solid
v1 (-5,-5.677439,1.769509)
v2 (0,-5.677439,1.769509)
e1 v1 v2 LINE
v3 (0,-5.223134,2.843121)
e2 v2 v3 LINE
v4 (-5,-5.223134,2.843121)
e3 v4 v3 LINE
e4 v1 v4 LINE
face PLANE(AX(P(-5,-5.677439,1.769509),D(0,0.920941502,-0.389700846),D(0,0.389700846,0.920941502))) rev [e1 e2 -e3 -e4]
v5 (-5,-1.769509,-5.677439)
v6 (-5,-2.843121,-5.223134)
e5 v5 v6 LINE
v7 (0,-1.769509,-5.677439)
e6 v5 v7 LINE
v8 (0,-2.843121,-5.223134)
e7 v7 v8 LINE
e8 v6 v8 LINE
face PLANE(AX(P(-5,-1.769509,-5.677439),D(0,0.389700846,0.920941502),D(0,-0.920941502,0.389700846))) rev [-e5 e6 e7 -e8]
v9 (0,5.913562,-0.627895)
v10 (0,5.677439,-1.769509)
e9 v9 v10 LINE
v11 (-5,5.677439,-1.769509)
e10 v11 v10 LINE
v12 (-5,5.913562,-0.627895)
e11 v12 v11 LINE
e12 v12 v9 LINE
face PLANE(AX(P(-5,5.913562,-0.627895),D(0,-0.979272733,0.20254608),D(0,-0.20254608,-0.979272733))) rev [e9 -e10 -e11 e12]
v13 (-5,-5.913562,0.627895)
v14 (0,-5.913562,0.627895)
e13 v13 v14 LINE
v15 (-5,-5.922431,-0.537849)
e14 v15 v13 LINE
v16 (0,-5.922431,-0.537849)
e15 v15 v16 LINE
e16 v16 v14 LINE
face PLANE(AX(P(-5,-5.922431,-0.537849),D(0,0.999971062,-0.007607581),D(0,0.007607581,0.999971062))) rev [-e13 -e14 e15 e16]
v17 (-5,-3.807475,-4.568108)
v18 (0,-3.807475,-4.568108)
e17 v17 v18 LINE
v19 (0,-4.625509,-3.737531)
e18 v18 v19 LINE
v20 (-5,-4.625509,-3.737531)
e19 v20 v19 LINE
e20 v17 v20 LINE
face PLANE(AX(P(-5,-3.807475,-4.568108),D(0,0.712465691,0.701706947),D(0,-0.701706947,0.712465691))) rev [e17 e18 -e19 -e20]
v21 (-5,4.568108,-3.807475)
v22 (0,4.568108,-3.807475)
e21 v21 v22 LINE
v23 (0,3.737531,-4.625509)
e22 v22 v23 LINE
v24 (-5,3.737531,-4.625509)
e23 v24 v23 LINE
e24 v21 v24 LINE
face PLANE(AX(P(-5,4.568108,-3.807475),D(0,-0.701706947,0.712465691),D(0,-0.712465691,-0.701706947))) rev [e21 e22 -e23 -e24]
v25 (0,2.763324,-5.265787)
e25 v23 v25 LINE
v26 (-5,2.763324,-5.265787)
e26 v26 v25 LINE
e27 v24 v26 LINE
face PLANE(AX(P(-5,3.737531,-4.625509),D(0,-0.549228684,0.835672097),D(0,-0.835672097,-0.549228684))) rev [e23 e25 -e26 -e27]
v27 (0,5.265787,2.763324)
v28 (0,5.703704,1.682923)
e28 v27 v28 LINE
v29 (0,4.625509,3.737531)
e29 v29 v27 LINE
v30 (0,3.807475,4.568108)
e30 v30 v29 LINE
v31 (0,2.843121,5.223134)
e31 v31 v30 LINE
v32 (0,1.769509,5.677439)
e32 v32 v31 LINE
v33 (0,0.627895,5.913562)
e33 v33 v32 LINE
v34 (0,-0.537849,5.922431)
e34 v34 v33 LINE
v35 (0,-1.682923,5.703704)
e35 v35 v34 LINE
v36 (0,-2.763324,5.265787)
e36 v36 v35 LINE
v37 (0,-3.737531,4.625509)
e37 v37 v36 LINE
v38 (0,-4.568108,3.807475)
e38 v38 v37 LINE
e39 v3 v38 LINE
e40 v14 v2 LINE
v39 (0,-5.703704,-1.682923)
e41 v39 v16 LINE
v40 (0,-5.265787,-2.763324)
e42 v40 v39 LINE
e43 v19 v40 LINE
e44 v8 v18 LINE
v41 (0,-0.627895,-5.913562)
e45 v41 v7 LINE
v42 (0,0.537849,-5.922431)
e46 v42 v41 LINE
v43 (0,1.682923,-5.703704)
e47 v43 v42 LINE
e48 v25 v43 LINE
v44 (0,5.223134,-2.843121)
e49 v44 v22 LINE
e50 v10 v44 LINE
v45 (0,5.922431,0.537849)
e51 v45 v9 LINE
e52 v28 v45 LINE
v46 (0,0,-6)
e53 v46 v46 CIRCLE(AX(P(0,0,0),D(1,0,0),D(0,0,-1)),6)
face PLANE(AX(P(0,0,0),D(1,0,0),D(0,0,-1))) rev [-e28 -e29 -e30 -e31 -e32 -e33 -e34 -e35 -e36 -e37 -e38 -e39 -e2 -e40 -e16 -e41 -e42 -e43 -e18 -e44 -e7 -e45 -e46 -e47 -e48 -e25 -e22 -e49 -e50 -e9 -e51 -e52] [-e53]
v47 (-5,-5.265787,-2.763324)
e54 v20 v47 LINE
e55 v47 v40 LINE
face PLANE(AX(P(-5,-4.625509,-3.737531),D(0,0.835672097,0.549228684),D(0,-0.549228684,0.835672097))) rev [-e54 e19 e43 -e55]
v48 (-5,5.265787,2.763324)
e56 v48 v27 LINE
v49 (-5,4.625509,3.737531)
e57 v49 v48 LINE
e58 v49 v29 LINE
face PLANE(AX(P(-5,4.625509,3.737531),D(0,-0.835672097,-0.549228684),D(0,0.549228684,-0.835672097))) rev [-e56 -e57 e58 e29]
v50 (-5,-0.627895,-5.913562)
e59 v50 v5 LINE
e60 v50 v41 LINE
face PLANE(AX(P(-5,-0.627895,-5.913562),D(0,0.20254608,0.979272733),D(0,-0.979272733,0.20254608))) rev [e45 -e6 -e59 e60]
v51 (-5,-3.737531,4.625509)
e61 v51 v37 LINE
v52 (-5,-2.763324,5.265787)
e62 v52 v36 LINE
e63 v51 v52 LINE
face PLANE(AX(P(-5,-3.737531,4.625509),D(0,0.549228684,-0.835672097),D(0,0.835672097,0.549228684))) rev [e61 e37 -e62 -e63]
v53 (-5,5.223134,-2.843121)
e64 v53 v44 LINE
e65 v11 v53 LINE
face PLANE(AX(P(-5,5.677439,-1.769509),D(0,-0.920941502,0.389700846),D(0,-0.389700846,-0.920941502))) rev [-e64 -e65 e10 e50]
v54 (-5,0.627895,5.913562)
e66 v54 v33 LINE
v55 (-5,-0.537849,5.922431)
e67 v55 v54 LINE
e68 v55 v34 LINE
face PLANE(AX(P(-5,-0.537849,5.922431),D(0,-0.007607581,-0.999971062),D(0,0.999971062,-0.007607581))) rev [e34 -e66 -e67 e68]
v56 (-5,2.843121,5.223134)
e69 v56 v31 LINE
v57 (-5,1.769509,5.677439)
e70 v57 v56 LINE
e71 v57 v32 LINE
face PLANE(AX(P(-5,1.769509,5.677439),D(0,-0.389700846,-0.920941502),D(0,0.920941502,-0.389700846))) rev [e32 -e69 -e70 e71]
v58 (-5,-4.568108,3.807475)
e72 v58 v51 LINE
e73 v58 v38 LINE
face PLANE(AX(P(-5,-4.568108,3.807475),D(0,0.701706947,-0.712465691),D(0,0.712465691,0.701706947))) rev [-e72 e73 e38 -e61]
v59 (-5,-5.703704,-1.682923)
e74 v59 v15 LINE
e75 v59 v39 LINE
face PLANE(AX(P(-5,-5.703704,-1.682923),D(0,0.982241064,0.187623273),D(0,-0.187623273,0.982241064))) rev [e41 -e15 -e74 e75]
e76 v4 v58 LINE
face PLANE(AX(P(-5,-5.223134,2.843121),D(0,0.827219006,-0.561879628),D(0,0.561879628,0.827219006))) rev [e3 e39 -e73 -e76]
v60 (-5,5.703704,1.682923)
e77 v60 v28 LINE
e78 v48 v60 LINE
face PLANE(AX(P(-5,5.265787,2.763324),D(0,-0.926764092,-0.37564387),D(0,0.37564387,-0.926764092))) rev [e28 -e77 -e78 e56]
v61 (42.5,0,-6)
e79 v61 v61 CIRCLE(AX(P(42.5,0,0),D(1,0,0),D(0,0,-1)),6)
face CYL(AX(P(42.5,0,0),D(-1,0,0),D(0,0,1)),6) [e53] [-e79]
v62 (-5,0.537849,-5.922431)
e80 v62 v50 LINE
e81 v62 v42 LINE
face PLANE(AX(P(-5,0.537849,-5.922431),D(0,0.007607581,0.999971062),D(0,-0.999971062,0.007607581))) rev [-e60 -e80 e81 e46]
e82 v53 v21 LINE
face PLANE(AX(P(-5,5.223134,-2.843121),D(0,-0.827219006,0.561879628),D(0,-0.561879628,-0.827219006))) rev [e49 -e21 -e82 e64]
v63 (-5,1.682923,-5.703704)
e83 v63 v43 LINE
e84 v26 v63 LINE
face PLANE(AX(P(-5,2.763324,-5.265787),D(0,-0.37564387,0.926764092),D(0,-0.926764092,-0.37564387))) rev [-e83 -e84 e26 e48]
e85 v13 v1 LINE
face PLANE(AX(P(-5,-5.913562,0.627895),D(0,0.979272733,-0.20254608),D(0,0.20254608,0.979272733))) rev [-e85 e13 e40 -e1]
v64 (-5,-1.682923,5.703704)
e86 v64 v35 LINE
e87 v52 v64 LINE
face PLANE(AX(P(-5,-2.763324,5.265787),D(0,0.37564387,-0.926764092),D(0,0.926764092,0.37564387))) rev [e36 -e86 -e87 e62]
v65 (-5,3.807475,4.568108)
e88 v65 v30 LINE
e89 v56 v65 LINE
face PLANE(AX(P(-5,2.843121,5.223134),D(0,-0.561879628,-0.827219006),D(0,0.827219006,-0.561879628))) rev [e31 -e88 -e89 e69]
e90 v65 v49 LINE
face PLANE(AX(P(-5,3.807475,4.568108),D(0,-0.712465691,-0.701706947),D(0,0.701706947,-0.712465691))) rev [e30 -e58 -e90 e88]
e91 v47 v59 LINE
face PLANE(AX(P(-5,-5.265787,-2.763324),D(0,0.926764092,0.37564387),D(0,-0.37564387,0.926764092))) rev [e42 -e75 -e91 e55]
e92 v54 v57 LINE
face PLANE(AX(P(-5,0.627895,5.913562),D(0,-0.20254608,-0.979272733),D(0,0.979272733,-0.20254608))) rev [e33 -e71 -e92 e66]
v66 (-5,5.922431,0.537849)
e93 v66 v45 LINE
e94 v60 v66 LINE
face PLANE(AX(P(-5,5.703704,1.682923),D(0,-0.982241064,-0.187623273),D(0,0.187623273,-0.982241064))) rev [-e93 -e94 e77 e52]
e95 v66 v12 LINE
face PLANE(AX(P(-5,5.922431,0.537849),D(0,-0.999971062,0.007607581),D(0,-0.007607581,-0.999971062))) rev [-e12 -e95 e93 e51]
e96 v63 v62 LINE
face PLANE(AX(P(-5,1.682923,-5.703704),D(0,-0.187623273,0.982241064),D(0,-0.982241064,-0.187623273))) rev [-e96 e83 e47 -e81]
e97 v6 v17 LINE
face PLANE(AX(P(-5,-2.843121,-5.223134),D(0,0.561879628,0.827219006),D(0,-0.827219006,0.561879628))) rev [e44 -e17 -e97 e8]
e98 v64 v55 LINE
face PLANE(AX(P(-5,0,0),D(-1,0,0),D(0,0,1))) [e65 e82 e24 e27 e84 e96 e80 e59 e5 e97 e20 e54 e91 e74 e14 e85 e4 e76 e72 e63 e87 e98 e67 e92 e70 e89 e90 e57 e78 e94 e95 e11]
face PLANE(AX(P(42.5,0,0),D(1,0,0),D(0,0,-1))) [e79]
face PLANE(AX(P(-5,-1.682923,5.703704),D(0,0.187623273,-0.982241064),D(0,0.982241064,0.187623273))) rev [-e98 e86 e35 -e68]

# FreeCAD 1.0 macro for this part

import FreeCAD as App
import Part
import Sketcher
from FreeCAD import Vector
Q = App.Units.Quantity

doc = App.newDocument("Part")
body = doc.addObject("PartDesign::Body", "Body")

sketch1 = body.newObject("Sketcher::SketchObject", "Sketch")
sketch1.AttachmentSupport = (doc.getObject("YZ_Plane"), [""])
sketch1.MapMode = "FlatFace"
sketch1.addGeometry(Part.Circle(Vector(0, 0, 0), Vector(0, 0, 1), 6), False)
sketch1.addConstraint(Sketcher.Constraint("Coincident", 0, 3, -1, 1))
sketch1.addConstraint(Sketcher.Constraint("Diameter", 0, Q("12 mm")))
pad1 = body.newObject("PartDesign::Pad", "Pad")
pad1.Profile = sketch1
pad1.Length = 42.5

sketch2 = body.newObject("Sketcher::SketchObject", "Sketch001")
sketch2.AttachmentSupport = (doc.getObject("YZ_Plane"), [""])
sketch2.MapMode = "FlatFace"
sketch2.addGeometry(Part.LineSegment(Vector(0.5, -5.9, 0), Vector(-0.6, -5.9, 0)), False)
sketch2.addGeometry(Part.LineSegment(Vector(-0.6, -5.9, 0), Vector(-1.8, -5.7, 0)), False)
sketch2.addGeometry(Part.LineSegment(Vector(-1.8, -5.7, 0), Vector(-2.8, -5.2, 0)), False)
sketch2.addGeometry(Part.LineSegment(Vector(-2.8, -5.2, 0), Vector(-3.8, -4.6, 0)), False)
sketch2.addGeometry(Part.LineSegment(Vector(-3.8, -4.6, 0), Vector(-4.6, -3.7, 0)), False)
sketch2.addGeometry(Part.LineSegment(Vector(-4.6, -3.7, 0), Vector(-5.3, -2.8, 0)), False)
sketch2.addGeometry(Part.LineSegment(Vector(-5.3, -2.8, 0), Vector(-5.7, -1.7, 0)), False)
sketch2.addGeometry(Part.LineSegment(Vector(-5.7, -1.7, 0), Vector(-5.9, -0.5, 0)), False)
sketch2.addGeometry(Part.LineSegment(Vector(-5.9, -0.5, 0), Vector(-5.9, 0.6, 0)), False)
sketch2.addGeometry(Part.LineSegment(Vector(-5.9, 0.6, 0), Vector(-5.7, 1.8, 0)), False)
sketch2.addGeometry(Part.LineSegment(Vector(-5.7, 1.8, 0), Vector(-5.2, 2.8, 0)), False)
sketch2.addGeometry(Part.LineSegment(Vector(-5.2, 2.8, 0), Vector(-4.6, 3.8, 0)), False)
sketch2.addGeometry(Part.LineSegment(Vector(-4.6, 3.8, 0), Vector(-3.7, 4.6, 0)), False)
sketch2.addGeometry(Part.LineSegment(Vector(-3.7, 4.6, 0), Vector(-2.8, 5.3, 0)), False)
sketch2.addGeometry(Part.LineSegment(Vector(-2.8, 5.3, 0), Vector(-1.7, 5.7, 0)), False)
sketch2.addGeometry(Part.LineSegment(Vector(-1.7, 5.7, 0), Vector(-0.5, 5.9, 0)), False)
sketch2.addGeometry(Part.LineSegment(Vector(-0.5, 5.9, 0), Vector(0.6, 5.9, 0)), False)
sketch2.addGeometry(Part.LineSegment(Vector(0.6, 5.9, 0), Vector(1.8, 5.7, 0)), False)
sketch2.addGeometry(Part.LineSegment(Vector(1.8, 5.7, 0), Vector(2.8, 5.2, 0)), False)
sketch2.addGeometry(Part.LineSegment(Vector(2.8, 5.2, 0), Vector(3.8, 4.6, 0)), False)
sketch2.addGeometry(Part.LineSegment(Vector(3.8, 4.6, 0), Vector(4.6, 3.7, 0)), False)
sketch2.addGeometry(Part.LineSegment(Vector(4.6, 3.7, 0), Vector(5.3, 2.8, 0)), False)
sketch2.addGeometry(Part.LineSegment(Vector(5.3, 2.8, 0), Vector(5.7, 1.7, 0)), False)
sketch2.addGeometry(Part.LineSegment(Vector(5.7, 1.7, 0), Vector(5.9, 0.5, 0)), False)
sketch2.addGeometry(Part.LineSegment(Vector(5.9, 0.5, 0), Vector(5.9, -0.6, 0)), False)
sketch2.addGeometry(Part.LineSegment(Vector(5.9, -0.6, 0), Vector(5.7, -1.8, 0)), False)
sketch2.addGeometry(Part.LineSegment(Vector(5.7, -1.8, 0), Vector(5.2, -2.8, 0)), False)
sketch2.addGeometry(Part.LineSegment(Vector(5.2, -2.8, 0), Vector(4.6, -3.8, 0)), False)
sketch2.addGeometry(Part.LineSegment(Vector(4.6, -3.8, 0), Vector(3.7, -4.6, 0)), False)
sketch2.addGeometry(Part.LineSegment(Vector(3.7, -4.6, 0), Vector(2.8, -5.3, 0)), False)
sketch2.addGeometry(Part.LineSegment(Vector(2.8, -5.3, 0), Vector(1.7, -5.7, 0)), False)
sketch2.addGeometry(Part.LineSegment(Vector(1.7, -5.7, 0), Vector(0.5, -5.9, 0)), False)
sketch2.addConstraint(Sketcher.Constraint("Coincident", 0, 2, 1, 1))
sketch2.addConstraint(Sketcher.Constraint("Coincident", 1, 2, 2, 1))
sketch2.addConstraint(Sketcher.Constraint("Coincident", 2, 2, 3, 1))
sketch2.addConstraint(Sketcher.Constraint("Coincident", 3, 2, 4, 1))
sketch2.addConstraint(Sketcher.Constraint("Coincident", 4, 2, 5, 1))
sketch2.addConstraint(Sketcher.Constraint("Coincident", 5, 2, 6, 1))
sketch2.addConstraint(Sketcher.Constraint("Coincident", 6, 2, 7, 1))
sketch2.addConstraint(Sketcher.Constraint("Coincident", 7, 2, 8, 1))
sketch2.addConstraint(Sketcher.Constraint("Coincident", 8, 2, 9, 1))
sketch2.addConstraint(Sketcher.Constraint("Coincident", 9, 2, 10, 1))
sketch2.addConstraint(Sketcher.Constraint("Coincident", 10, 2, 11, 1))
sketch2.addConstraint(Sketcher.Constraint("Coincident", 11, 2, 12, 1))
sketch2.addConstraint(Sketcher.Constraint("Coincident", 12, 2, 13, 1))
sketch2.addConstraint(Sketcher.Constraint("Coincident", 13, 2, 14, 1))
sketch2.addConstraint(Sketcher.Constraint("Coincident", 14, 2, 15, 1))
sketch2.addConstraint(Sketcher.Constraint("Coincident", 15, 2, 16, 1))
sketch2.addConstraint(Sketcher.Constraint("Coincident", 16, 2, 17, 1))
sketch2.addConstraint(Sketcher.Constraint("Coincident", 17, 2, 18, 1))
sketch2.addConstraint(Sketcher.Constraint("Coincident", 18, 2, 19, 1))
sketch2.addConstraint(Sketcher.Constraint("Coincident", 19, 2, 20, 1))
sketch2.addConstraint(Sketcher.Constraint("Coincident", 20, 2, 21, 1))
sketch2.addConstraint(Sketcher.Constraint("Coincident", 21, 2, 22, 1))
sketch2.addConstraint(Sketcher.Constraint("Coincident", 22, 2, 23, 1))
sketch2.addConstraint(Sketcher.Constraint("Coincident", 23, 2, 24, 1))
sketch2.addConstraint(Sketcher.Constraint("Coincident", 24, 2, 25, 1))
sketch2.addConstraint(Sketcher.Constraint("Coincident", 25, 2, 26, 1))
sketch2.addConstraint(Sketcher.Constraint("Coincident", 26, 2, 27, 1))
sketch2.addConstraint(Sketcher.Constraint("Coincident", 27, 2, 28, 1))
sketch2.addConstraint(Sketcher.Constraint("Coincident", 28, 2, 29, 1))
sketch2.addConstraint(Sketcher.Constraint("Coincident", 29, 2, 30, 1))
sketch2.addConstraint(Sketcher.Constraint("Coincident", 30, 2, 31, 1))
sketch2.addConstraint(Sketcher.Constraint("Coincident", 31, 2, 0, 1))
sketch2.addConstraint(Sketcher.Constraint("Symmetric", 0, 2, 16, 2, -1, 1))
sketch2.addConstraint(Sketcher.Constraint("Symmetric", 1, 2, 17, 2, -1, 1))
sketch2.addConstraint(Sketcher.Constraint("Symmetric", 2, 2, 18, 2, -1, 1))
sketch2.addConstraint(Sketcher.Constraint("Symmetric", 3, 2, 19, 2, -1, 1))
sketch2.addConstraint(Sketcher.Constraint("Symmetric", 4, 2, 20, 2, -1, 1))
sketch2.addConstraint(Sketcher.Constraint("Symmetric", 5, 2, 21, 2, -1, 1))
sketch2.addConstraint(Sketcher.Constraint("Symmetric", 6, 2, 22, 2, -1, 1))
sketch2.addConstraint(Sketcher.Constraint("Symmetric", 7, 2, 23, 2, -1, 1))
sketch2.addConstraint(Sketcher.Constraint("Symmetric", 8, 2, 24, 2, -1, 1))
sketch2.addConstraint(Sketcher.Constraint("Symmetric", 9, 2, 25, 2, -1, 1))
sketch2.addConstraint(Sketcher.Constraint("Symmetric", 10, 2, 26, 2, -1, 1))
sketch2.addConstraint(Sketcher.Constraint("Symmetric", 11, 2, 27, 2, -1, 1))
sketch2.addConstraint(Sketcher.Constraint("Symmetric", 12, 2, 28, 2, -1, 1))
sketch2.addConstraint(Sketcher.Constraint("Symmetric", 13, 2, 29, 2, -1, 1))
sketch2.addConstraint(Sketcher.Constraint("Symmetric", 14, 2, 30, 2, -1, 1))
sketch2.addConstraint(Sketcher.Constraint("Symmetric", 15, 2, 31, 2, -1, 1))
sketch2.addConstraint(Sketcher.Constraint("Perpendicular", 0, 8))
sketch2.addConstraint(Sketcher.Constraint("Perpendicular", 1, 9))
sketch2.addConstraint(Sketcher.Constraint("Perpendicular", 2, 10))
sketch2.addConstraint(Sketcher.Constraint("Perpendicular", 3, 11))
sketch2.addConstraint(Sketcher.Constraint("Perpendicular", 4, 12))
sketch2.addConstraint(Sketcher.Constraint("Perpendicular", 5, 13))
sketch2.addConstraint(Sketcher.Constraint("Perpendicular", 6, 14))
sketch2.addConstraint(Sketcher.Constraint("Perpendicular", 7, 15))
sketch2.addConstraint(Sketcher.Constraint("Equal", 0, 1))
sketch2.addConstraint(Sketcher.Constraint("Equal", 1, 2))
sketch2.addConstraint(Sketcher.Constraint("Equal", 2, 3))
sketch2.addConstraint(Sketcher.Constraint("Equal", 3, 4))
sketch2.addConstraint(Sketcher.Constraint("Equal", 4, 5))
sketch2.addConstraint(Sketcher.Constraint("Equal", 5, 6))
sketch2.addConstraint(Sketcher.Constraint("Equal", 6, 7))
sketch2.addConstraint(Sketcher.Constraint("Equal", 7, 8))
sketch2.addConstraint(Sketcher.Constraint("Equal", 8, 9))
sketch2.addConstraint(Sketcher.Constraint("Equal", 9, 10))
sketch2.addConstraint(Sketcher.Constraint("Equal", 10, 11))
sketch2.addConstraint(Sketcher.Constraint("Equal", 11, 12))
sketch2.addConstraint(Sketcher.Constraint("Equal", 12, 13))
sketch2.addConstraint(Sketcher.Constraint("Equal", 13, 14))
sketch2.addConstraint(Sketcher.Constraint("Equal", 14, 15))
sketch2.addConstraint(Sketcher.Constraint("DistanceX", 4, 2, 1, 2, Q("2.856 mm")))
sketch2.addConstraint(Sketcher.Constraint("DistanceY", 5, 2, 6, 2, Q("1.080401 mm")))
sketch2.addConstraint(Sketcher.Constraint("DistanceX", 7, 2, 12, 2, Q("2.1849 mm")))
sketch2.addConstraint(Sketcher.Constraint("DistanceX", 1, 2, -1, 1, Q("1.769509 mm")))
sketch2.addConstraint(Sketcher.Constraint("DistanceY", 1, 2, -1, 1, Q("5.677439 mm")))
sketch2.addConstraint(Sketcher.Constraint("DistanceX", 2, 2, -1, 1, Q("2.843121 mm")))
sketch2.addConstraint(Sketcher.Constraint("DistanceY", 4, 2, -1, 1, Q("3.737531 mm")))
sketch2.addConstraint(Sketcher.Constraint("DistanceY", 7, 2, -1, 1, Q("0.537849 mm")))
sketch2.addConstraint(Sketcher.Constraint("DistanceY", 0, 2, 2, 2, Q("0.690428 mm")))
pad2 = body.newObject("PartDesign::Pad", "Pad001")
pad2.Profile = sketch2
pad2.Length = 5
pad2.Reversed = True

doc.recompute()
